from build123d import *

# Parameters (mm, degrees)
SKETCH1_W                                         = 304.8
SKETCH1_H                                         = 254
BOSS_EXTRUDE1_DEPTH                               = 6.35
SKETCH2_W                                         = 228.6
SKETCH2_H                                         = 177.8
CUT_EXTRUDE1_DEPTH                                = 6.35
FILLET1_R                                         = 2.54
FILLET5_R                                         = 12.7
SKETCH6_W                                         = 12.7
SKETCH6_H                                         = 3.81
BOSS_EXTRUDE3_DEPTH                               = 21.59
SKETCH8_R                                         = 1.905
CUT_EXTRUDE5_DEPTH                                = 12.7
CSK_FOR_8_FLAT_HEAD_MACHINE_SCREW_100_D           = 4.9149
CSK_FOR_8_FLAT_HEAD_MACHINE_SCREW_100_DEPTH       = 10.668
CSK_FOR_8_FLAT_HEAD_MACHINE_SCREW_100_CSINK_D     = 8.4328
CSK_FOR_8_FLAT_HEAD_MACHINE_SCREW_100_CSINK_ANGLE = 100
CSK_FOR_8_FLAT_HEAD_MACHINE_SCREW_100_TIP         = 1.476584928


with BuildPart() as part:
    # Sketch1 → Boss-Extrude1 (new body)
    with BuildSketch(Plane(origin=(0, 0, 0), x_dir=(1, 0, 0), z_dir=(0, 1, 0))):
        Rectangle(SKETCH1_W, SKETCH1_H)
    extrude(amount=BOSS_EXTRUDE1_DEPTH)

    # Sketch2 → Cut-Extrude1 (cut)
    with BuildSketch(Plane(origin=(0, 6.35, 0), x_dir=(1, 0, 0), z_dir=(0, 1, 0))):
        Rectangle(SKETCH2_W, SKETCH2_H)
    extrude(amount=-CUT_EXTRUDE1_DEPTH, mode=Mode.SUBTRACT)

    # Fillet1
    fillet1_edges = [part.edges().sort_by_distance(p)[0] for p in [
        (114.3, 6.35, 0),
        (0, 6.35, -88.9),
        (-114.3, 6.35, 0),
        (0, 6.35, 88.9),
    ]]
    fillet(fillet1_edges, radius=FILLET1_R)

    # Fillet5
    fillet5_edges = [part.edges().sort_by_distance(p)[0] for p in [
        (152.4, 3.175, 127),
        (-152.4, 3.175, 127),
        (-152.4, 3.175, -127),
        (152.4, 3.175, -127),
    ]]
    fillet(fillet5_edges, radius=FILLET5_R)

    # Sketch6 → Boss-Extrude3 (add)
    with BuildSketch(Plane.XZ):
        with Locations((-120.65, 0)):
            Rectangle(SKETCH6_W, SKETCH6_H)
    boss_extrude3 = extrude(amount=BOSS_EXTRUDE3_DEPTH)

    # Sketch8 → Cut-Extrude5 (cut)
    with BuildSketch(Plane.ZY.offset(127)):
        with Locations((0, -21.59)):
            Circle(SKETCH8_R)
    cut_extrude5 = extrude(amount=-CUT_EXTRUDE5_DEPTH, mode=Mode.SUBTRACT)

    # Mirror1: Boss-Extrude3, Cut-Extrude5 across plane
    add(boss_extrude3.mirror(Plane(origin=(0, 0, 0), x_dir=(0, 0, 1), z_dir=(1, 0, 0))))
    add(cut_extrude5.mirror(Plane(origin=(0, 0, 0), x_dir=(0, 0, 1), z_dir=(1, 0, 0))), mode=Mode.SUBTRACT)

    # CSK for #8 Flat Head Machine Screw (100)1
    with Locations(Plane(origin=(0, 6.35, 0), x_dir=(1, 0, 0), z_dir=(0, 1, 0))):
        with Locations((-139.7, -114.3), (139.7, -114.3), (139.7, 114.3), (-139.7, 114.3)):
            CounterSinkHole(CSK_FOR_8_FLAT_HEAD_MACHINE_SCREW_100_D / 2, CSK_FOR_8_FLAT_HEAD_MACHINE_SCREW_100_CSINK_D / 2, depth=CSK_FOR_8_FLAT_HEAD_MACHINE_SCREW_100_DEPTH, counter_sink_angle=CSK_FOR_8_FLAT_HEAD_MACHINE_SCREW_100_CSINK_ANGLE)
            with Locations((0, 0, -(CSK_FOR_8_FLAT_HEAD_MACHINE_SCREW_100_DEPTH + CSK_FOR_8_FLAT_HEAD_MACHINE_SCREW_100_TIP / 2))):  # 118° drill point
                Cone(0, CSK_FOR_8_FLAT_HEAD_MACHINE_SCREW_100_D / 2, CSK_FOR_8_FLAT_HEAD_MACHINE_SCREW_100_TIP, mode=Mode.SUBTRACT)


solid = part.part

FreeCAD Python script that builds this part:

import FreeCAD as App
import Part
import Sketcher

V = App.Vector
Q = App.Units.Quantity


def edges_at(feature, points):
    """Names of the edges that pass closest to the given points."""
    edges = feature.Shape.Edges
    near = lambda p: min(range(len(edges)), key=lambda i: edges[i].distToShape(Part.Vertex(*p))[0])
    return sorted({f"Edge{near(p) + 1}" for p in points})


def add_polygon(sketch, points):
    """Adds a closed chain of lines whose ends are joined by coincident constraints."""
    first, n = sketch.GeometryCount, len(points)
    for a, b in zip(points, points[1:] + points[:1]):
        sketch.addGeometry(Part.LineSegment(App.Vector(*a, 0), App.Vector(*b, 0)), False)
    for i in range(n):
        sketch.addConstraint(Sketcher.Constraint("Coincident", first + i, 2, first + (i + 1) % n, 1))

doc = App.newDocument("Part")
body = doc.addObject("PartDesign::Body", "Body")

# Sketch on XZ plane
sketch1 = body.newObject("Sketcher::SketchObject", "Sketch")
sketch1.AttachmentSupport = (doc.getObject("XZ_Plane"), [""])
sketch1.MapMode = "FlatFace"
add_polygon(sketch1, [(-152.4, -127), (-152.4, 127), (152.4, 127), (152.4, -127)])  # lines 0-3
sketch1.addConstraint(Sketcher.Constraint("Vertical", 0))
sketch1.addConstraint(Sketcher.Constraint("Horizontal", 1))
sketch1.addConstraint(Sketcher.Constraint("Vertical", 2))
sketch1.addConstraint(Sketcher.Constraint("Horizontal", 3))
sketch1.addConstraint(Sketcher.Constraint("Symmetric", 0, 2, 2, 2, -1, 1))
sketch1.addConstraint(Sketcher.Constraint("DistanceX", 1, 1, 1, 2, Q("12 in")))
sketch1.addConstraint(Sketcher.Constraint("DistanceY", 0, 1, 0, 2, Q("10 in")))
pad1 = body.newObject("PartDesign::Pad", "Pad")
pad1.Profile = sketch1
pad1.Length = Q("0.25 in")
pad1.Reversed = True

# Sketch on XZ plane
sketch2 = body.newObject("Sketcher::SketchObject", "Sketch001")
sketch2.AttachmentSupport = (doc.getObject("XZ_Plane"), [""])
sketch2.MapMode = "FlatFace"
sketch2.AttachmentOffset = App.Placement(V(0, 0, -0.25 * 25.4), App.Rotation())
add_polygon(sketch2, [(-114.3, -88.9), (-114.3, 88.9), (114.3, 88.9), (114.3, -88.9)])  # lines 0-3
sketch2.addConstraint(Sketcher.Constraint("Vertical", 0))
sketch2.addConstraint(Sketcher.Constraint("Horizontal", 1))
sketch2.addConstraint(Sketcher.Constraint("Vertical", 2))
sketch2.addConstraint(Sketcher.Constraint("Horizontal", 3))
sketch2.addConstraint(Sketcher.Constraint("Symmetric", 0, 2, 2, 2, -1, 1))
sketch2.addConstraint(Sketcher.Constraint("DistanceX", 1, 1, 1, 2, Q("9 in")))
sketch2.addConstraint(Sketcher.Constraint("DistanceY", 0, 1, 0, 2, Q("7 in")))
pocket1 = body.newObject("PartDesign::Pocket", "Pocket")
pocket1.Profile = sketch2
pocket1.Length = Q("0.25 in")
pocket1.Reversed = True
doc.recompute()

fillet = body.newObject("PartDesign::Fillet", "Fillet")
fillet.Base = (pocket1, edges_at(pocket1, [
    (114.3, 6.35, 0),
    (0, 6.35, -88.9),
    (-114.3, 6.35, 0),
    (0, 6.35, 88.9),
]))
fillet.Radius = Q("0.1 in")
doc.recompute()

fillet2 = body.newObject("PartDesign::Fillet", "Fillet001")
fillet2.Base = (fillet, edges_at(fillet, [
    (152.4, 3.175, 127),
    (-152.4, 3.175, 127),
    (-152.4, 3.175, -127),
    (152.4, 3.175, -127),
]))
fillet2.Radius = Q("0.5 in")

# Sketch on XZ plane
sketch3 = body.newObject("Sketcher::SketchObject", "Sketch002")
sketch3.AttachmentSupport = (doc.getObject("XZ_Plane"), [""])
sketch3.MapMode = "FlatFace"
add_polygon(sketch3, [(-127, 1.905), (-127, -1.905), (-114.3, -1.905), (-114.3, 1.905)])  # lines 0-3
sketch3.addConstraint(Sketcher.Constraint("Vertical", 0))
sketch3.addConstraint(Sketcher.Constraint("Horizontal", 1))
sketch3.addConstraint(Sketcher.Constraint("Vertical", 2))
sketch3.addConstraint(Sketcher.Constraint("Horizontal", 3))
sketch3.addConstraint(Sketcher.Constraint("DistanceX", 1, 1, 1, 2, Q("0.5 in")))
sketch3.addConstraint(Sketcher.Constraint("DistanceX", 0, 2, -1, 1, Q("5 in")))
sketch3.addConstraint(Sketcher.Constraint("DistanceY", 0, 2, 0, 1, Q("0.15 in")))
sketch3.addConstraint(Sketcher.Constraint("DistanceY", 0, 2, -1, 1, Q("0.075 in")))
pad2 = body.newObject("PartDesign::Pad", "Pad001")
pad2.Profile = sketch3
pad2.Length = Q("0.85 in")

# Sketch on YZ plane
sketch4 = body.newObject("Sketcher::SketchObject", "Sketch003")
sketch4.AttachmentSupport = (doc.getObject("YZ_Plane"), [""])
sketch4.MapMode = "FlatFace"
sketch4.AttachmentOffset = App.Placement(V(0, 0, -5 * 25.4), App.Rotation())
sketch4.addGeometry(Part.Circle(V(-21.59, 0, 0), V(0, 0, 1), 1.905), False)
sketch4.addConstraint(Sketcher.Constraint("PointOnObject", 0, 3, -1))
sketch4.addConstraint(Sketcher.Constraint("Diameter", 0, Q("0.15 in")))
sketch4.addConstraint(Sketcher.Constraint("DistanceX", 0, 3, -1, 1, Q("0.85 in")))
pocket2 = body.newObject("PartDesign::Pocket", "Pocket001")
pocket2.Profile = sketch4
pocket2.Length = Q("0.5 in")
pocket2.Reversed = True
doc.recompute()

mirrored = body.newObject("PartDesign::Mirrored", "Mirrored")
mirrored.Originals = [pad2, pocket2]
mirrored.MirrorPlane = (doc.getObject("YZ_Plane"), [""])
body.Tip = mirrored

# Sketch on XZ plane
sketch5 = body.newObject("Sketcher::SketchObject", "Sketch004")
sketch5.AttachmentSupport = (doc.getObject("XZ_Plane"), [""])
sketch5.MapMode = "FlatFace"
sketch5.AttachmentOffset = App.Placement(V(0, 0, -0.25 * 25.4), App.Rotation())
sketch5.addGeometry(Part.Circle(V(-139.7, 114.3, 0), V(0, 0, 1), 2.45745), False)
sketch5.addGeometry(Part.Circle(V(139.7, 114.3, 0), V(0, 0, 1), 2.45745), False)
sketch5.addGeometry(Part.Circle(V(139.7, -114.3, 0), V(0, 0, 1), 2.45745), False)
sketch5.addGeometry(Part.Circle(V(-139.7, -114.3, 0), V(0, 0, 1), 2.45745), False)
sketch5.addConstraint(Sketcher.Constraint("Equal", 0, 1))
sketch5.addConstraint(Sketcher.Constraint("Equal", 1, 2))
sketch5.addConstraint(Sketcher.Constraint("Equal", 2, 3))
sketch5.addConstraint(Sketcher.Constraint("Symmetric", 0, 3, 2, 3, -1, 1))
sketch5.addConstraint(Sketcher.Constraint("Symmetric", 1, 3, 3, 3, -1, 1))
sketch5.addConstraint(Sketcher.Constraint("Symmetric", 0, 3, 1, 3, -2))
sketch5.addConstraint(Sketcher.Constraint("DistanceX", 0, 3, 1, 3, Q("11 in")))
sketch5.addConstraint(Sketcher.Constraint("DistanceY", 2, 3, 1, 3, Q("9 in")))
sketch5.addConstraint(Sketcher.Constraint("Diameter", 0, Q("0.1935 in")))
doc.recompute()
hole = body.newObject("PartDesign::Hole", "Hole")
hole.Profile = sketch5
hole.ThreadType = "None"
hole.Diameter = Q("0.1935 in")
hole.DepthType = "Dimension"
hole.Depth = Q("0.42 in")
hole.DrillPoint = "Angled"
hole.DrillPointAngle = 118
hole.HoleCutType = "Countersink"
hole.HoleCutDiameter = Q("0.332 in")
hole.HoleCutCountersinkAngle = 100
hole.Reversed = True

doc.recompute()
